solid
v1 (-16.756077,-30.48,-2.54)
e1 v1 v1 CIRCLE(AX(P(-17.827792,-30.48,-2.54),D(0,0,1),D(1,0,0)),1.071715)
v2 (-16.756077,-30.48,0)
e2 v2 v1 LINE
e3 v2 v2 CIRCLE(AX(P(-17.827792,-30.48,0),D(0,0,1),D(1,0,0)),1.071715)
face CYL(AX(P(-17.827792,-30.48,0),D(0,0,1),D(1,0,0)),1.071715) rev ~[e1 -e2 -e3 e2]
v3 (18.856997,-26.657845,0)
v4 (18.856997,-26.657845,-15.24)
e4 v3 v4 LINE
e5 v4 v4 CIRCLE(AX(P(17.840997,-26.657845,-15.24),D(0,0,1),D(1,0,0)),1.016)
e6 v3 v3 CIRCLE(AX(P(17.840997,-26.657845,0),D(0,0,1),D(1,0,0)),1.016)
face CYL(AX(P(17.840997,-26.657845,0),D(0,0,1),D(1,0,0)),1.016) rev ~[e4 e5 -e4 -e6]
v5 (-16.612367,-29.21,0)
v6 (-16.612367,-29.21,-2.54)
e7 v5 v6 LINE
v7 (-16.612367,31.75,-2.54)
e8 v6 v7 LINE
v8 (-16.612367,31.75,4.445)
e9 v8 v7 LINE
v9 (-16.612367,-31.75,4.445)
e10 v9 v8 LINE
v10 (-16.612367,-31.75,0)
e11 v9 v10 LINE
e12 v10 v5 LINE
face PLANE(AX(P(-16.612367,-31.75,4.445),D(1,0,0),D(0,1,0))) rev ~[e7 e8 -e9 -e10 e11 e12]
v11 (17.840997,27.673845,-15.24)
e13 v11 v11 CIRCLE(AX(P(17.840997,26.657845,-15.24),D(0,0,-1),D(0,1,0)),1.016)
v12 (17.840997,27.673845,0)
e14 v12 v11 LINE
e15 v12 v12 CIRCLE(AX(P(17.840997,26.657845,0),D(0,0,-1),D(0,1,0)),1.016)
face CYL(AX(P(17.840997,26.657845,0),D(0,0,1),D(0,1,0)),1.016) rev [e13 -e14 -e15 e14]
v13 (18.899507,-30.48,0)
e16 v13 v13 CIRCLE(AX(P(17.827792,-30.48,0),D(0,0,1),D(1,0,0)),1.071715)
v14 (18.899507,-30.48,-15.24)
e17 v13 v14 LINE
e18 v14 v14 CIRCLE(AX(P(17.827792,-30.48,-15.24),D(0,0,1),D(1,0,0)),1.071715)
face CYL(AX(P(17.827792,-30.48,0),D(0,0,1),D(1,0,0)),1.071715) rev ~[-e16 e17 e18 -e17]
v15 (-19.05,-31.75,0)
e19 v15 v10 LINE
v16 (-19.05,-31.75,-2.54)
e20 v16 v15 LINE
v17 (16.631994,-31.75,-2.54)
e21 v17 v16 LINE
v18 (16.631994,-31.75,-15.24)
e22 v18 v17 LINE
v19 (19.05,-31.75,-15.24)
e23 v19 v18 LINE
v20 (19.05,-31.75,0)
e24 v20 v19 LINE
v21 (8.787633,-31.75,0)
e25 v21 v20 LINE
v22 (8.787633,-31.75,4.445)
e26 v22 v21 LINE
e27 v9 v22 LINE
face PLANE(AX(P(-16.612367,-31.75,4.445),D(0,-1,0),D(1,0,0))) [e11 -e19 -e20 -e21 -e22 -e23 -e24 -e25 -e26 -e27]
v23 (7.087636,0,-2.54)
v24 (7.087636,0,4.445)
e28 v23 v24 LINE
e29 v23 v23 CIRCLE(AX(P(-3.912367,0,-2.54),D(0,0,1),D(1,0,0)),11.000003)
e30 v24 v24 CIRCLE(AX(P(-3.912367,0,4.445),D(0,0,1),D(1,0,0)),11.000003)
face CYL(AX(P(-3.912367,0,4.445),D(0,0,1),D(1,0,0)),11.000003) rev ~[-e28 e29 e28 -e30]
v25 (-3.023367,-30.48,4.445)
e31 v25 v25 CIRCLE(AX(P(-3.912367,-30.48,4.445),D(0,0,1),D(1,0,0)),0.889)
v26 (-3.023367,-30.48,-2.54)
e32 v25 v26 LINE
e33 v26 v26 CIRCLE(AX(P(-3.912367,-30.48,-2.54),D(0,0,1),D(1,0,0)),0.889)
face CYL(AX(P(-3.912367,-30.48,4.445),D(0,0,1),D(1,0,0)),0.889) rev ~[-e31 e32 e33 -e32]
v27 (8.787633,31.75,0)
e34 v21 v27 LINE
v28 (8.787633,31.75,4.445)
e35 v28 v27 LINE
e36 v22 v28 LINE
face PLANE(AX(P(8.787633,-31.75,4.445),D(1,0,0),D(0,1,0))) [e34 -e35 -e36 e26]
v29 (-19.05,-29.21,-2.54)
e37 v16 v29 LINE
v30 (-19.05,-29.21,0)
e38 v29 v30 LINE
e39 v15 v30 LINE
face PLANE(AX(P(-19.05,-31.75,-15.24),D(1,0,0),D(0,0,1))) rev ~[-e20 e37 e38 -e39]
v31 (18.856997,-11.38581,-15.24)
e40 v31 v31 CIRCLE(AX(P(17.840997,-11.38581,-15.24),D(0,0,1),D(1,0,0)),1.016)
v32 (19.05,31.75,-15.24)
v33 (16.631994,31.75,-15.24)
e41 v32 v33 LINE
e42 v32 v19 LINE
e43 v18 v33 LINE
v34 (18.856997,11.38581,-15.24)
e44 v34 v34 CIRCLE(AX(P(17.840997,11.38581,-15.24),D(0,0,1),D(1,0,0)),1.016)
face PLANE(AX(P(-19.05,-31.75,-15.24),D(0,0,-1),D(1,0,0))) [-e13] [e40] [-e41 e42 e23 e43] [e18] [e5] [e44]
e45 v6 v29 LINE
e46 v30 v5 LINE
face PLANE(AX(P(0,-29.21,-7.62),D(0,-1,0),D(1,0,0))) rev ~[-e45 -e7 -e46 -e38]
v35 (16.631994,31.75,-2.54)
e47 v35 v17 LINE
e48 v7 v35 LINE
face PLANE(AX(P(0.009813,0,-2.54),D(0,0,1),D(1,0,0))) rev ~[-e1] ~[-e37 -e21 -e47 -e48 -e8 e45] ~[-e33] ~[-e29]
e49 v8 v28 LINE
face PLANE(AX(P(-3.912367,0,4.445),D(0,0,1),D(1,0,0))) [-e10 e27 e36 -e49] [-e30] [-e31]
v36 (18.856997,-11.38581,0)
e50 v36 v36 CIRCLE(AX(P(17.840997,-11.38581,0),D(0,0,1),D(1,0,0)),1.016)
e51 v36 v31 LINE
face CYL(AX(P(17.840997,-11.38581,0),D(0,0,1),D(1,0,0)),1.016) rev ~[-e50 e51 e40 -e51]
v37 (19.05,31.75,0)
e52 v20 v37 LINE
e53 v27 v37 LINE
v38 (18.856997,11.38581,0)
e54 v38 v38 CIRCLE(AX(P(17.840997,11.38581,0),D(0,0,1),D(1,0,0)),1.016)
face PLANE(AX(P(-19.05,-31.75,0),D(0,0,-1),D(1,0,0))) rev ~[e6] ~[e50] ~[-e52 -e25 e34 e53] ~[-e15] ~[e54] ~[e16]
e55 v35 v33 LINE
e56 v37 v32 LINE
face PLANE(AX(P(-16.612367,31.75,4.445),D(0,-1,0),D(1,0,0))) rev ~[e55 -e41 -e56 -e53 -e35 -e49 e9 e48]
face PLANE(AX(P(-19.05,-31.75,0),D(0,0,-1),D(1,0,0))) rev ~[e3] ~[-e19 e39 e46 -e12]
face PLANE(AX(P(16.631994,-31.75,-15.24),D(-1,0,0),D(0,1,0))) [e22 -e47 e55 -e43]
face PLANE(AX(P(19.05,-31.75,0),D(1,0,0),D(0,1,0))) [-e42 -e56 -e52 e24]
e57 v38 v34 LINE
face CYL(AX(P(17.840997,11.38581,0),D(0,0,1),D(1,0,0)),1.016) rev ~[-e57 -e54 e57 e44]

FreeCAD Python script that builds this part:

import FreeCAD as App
import Part
import Sketcher
from FreeCAD import Vector
Q = App.Units.Quantity


def add_polygon(sketch, points):
    """Adds a closed chain of lines whose ends are joined by coincident constraints."""
    first, n = sketch.GeometryCount, len(points)
    for a, b in zip(points, points[1:] + points[:1]):
        sketch.addGeometry(Part.LineSegment(App.Vector(*a, 0), App.Vector(*b, 0)), False)
    for i in range(n):
        sketch.addConstraint(Sketcher.Constraint("Coincident", first + i, 2, first + (i + 1) % n, 1))

doc = App.newDocument("Part")
body = doc.addObject("PartDesign::Body", "Body")

# Sketch on XY plane
sketch1 = body.newObject("Sketcher::SketchObject", "Sketch")
sketch1.AttachmentSupport = (doc.getObject("XY_Plane"), [""])
sketch1.MapMode = "FlatFace"
add_polygon(sketch1, [(19.1, 31.8), (16.6, 31.8), (16.6, -31.8), (19.1, -31.8)])  # lines 0-3
sketch1.addGeometry(Part.Circle(Vector(17.8, -26.7, 0), Vector(0, 0, 1), 1), False)  # 4
sketch1.addGeometry(Part.Circle(Vector(17.8, -11.4, 0), Vector(0, 0, 1), 1), False)  # 5
sketch1.addGeometry(Part.Circle(Vector(17.8, 11.4, 0), Vector(0, 0, 1), 1), False)  # 6
sketch1.addGeometry(Part.Circle(Vector(17.8, 26.7, 0), Vector(0, 0, 1), 1), False)  # 7
sketch1.addConstraint(Sketcher.Constraint("Horizontal", 0))
sketch1.addConstraint(Sketcher.Constraint("Vertical", 1))
sketch1.addConstraint(Sketcher.Constraint("Horizontal", 2))
sketch1.addConstraint(Sketcher.Constraint("Vertical", 3))
sketch1.addConstraint(Sketcher.Constraint("Equal", 4, 5))
sketch1.addConstraint(Sketcher.Constraint("Equal", 5, 6))
sketch1.addConstraint(Sketcher.Constraint("Equal", 6, 7))
sketch1.addConstraint(Sketcher.Constraint("Symmetric", 5, 3, 6, 3, -1))
sketch1.addConstraint(Sketcher.Constraint("Symmetric", 4, 3, 7, 3, -1))
sketch1.addConstraint(Sketcher.Constraint("Vertical", 4, 3, 5, 3))
sketch1.addConstraint(Sketcher.Constraint("Diameter", 4, Q("0.08 in")))
sketch1.addConstraint(Sketcher.Constraint("DistanceY", 1, 2, 1, 1, Q("2.5 in")))
sketch1.addConstraint(Sketcher.Constraint("DistanceY", -1, 1, 0, 2, Q("1.25 in")))
sketch1.addConstraint(Sketcher.Constraint("DistanceX", -1, 1, 2, 2, Q("0.75 in")))
sketch1.addConstraint(Sketcher.Constraint("DistanceX", 0, 2, 0, 1, Q("2.418006 mm")))
sketch1.addConstraint(Sketcher.Constraint("DistanceY", 5, 3, -1, 1, Q("11.38581 mm")))
sketch1.addConstraint(Sketcher.Constraint("DistanceY", 4, 3, 7, 3, Q("53.31569 mm")))
sketch1.addConstraint(Sketcher.Constraint("DistanceX", -1, 1, 4, 3, Q("17.840997 mm")))
pad1 = body.newObject("PartDesign::Pad", "Pad")
pad1.Profile = sketch1
pad1.Length = Q("0.6 in")
pad1.Reversed = True

# Sketch on XY plane
sketch2 = body.newObject("Sketcher::SketchObject", "Sketch001")
sketch2.AttachmentSupport = (doc.getObject("XY_Plane"), [""])
sketch2.MapMode = "FlatFace"
add_polygon(sketch2, [(-17, 32), (-17, -32), (17, -32), (17, 32)])  # lines 0-3
sketch2.addConstraint(Sketcher.Constraint("Vertical", 0))
sketch2.addConstraint(Sketcher.Constraint("Horizontal", 1))
sketch2.addConstraint(Sketcher.Constraint("Vertical", 2))
sketch2.addConstraint(Sketcher.Constraint("Horizontal", 3))
sketch2.addConstraint(Sketcher.Constraint("DistanceY", 0, 2, 0, 1, Q("2.5 in")))
sketch2.addConstraint(Sketcher.Constraint("DistanceY", 0, 2, -1, 1, Q("1.25 in")))
sketch2.addConstraint(Sketcher.Constraint("DistanceX", 1, 1, 1, 2, Q("33.244361 mm")))
sketch2.addConstraint(Sketcher.Constraint("DistanceX", 0, 2, -1, 1, Q("16.612367 mm")))
pad2 = body.newObject("PartDesign::Pad", "Pad001")
pad2.Profile = sketch2
pad2.Length = Q("0.1 in")
pad2.Reversed = True

# Sketch on XZ plane
sketch3 = body.newObject("Sketcher::SketchObject", "Sketch002")
sketch3.AttachmentSupport = (doc.getObject("XZ_Plane"), [""])
sketch3.MapMode = "FlatFace"
sketch3.AttachmentOffset = App.Placement(Vector(0, 0, 1.25 * 25.4), App.Rotation())
add_polygon(sketch3, [(-19, 0), (-19, -15), (19, -15), (19, 0)])  # lines 0-3
sketch3.addConstraint(Sketcher.Constraint("Vertical", 0))
sketch3.addConstraint(Sketcher.Constraint("Horizontal", 1))
sketch3.addConstraint(Sketcher.Constraint("Vertical", 2))
sketch3.addConstraint(Sketcher.Constraint("Horizontal", 3))
sketch3.addConstraint(Sketcher.Constraint("Symmetric", 2, 2, 3, 2, -1, 1))
sketch3.addConstraint(Sketcher.Constraint("DistanceX", 1, 1, 1, 2, Q("1.5 in")))
sketch3.addConstraint(Sketcher.Constraint("DistanceY", 0, 2, 0, 1, Q("0.6 in")))
pad3 = body.newObject("PartDesign::Pad", "Pad002")
pad3.Profile = sketch3
pad3.Length = Q("0.1 in")
pad3.Reversed = True

# Sketch on XY plane
sketch4 = body.newObject("Sketcher::SketchObject", "Sketch003")
sketch4.AttachmentSupport = (doc.getObject("XY_Plane"), [""])
sketch4.MapMode = "FlatFace"
sketch4.addGeometry(Part.Circle(Vector(-17.8, -30.5, 0), Vector(0, 0, 1), 1.1), False)
sketch4.addGeometry(Part.Circle(Vector(17.8, -30.5, 0), Vector(0, 0, 1), 1.1), False)
sketch4.addConstraint(Sketcher.Constraint("Equal", 0, 1))
sketch4.addConstraint(Sketcher.Constraint("Symmetric", 0, 3, 1, 3, -2))
sketch4.addConstraint(Sketcher.Constraint("DistanceY", 0, 3, -1, 1, Q("1.2 in")))
sketch4.addConstraint(Sketcher.Constraint("Diameter", 0, Q("2.14343 mm")))
sketch4.addConstraint(Sketcher.Constraint("DistanceX", 0, 3, -1, 1, Q("17.827792 mm")))
pocket1 = body.newObject("PartDesign::Pocket", "Pocket")
pocket1.Profile = sketch4
pocket1.Type = "ThroughAll"

# Sketch on XY plane
sketch5 = body.newObject("Sketcher::SketchObject", "Sketch004")
sketch5.AttachmentSupport = (doc.getObject("XY_Plane"), [""])
sketch5.MapMode = "FlatFace"
sketch5.addGeometry(Part.Circle(Vector(-4, 0, 0), Vector(0, 0, 1), 11), False)
sketch5.addConstraint(Sketcher.Constraint("PointOnObject", 0, 3, -1))
sketch5.addConstraint(Sketcher.Constraint("Diameter", 0, Q("22.000007 mm")))
sketch5.addConstraint(Sketcher.Constraint("DistanceX", 0, 3, -1, 1, Q("3.912367 mm")))
pocket2 = body.newObject("PartDesign::Pocket", "Pocket001")
pocket2.Profile = sketch5
pocket2.Type = "ThroughAll"

# Sketch on XY plane
sketch6 = body.newObject("Sketcher::SketchObject", "Sketch005")
sketch6.AttachmentSupport = (doc.getObject("XY_Plane"), [""])
sketch6.MapMode = "FlatFace"
sketch6.AttachmentOffset = App.Placement(Vector(0, 0, 0.175 * 25.4), App.Rotation())
add_polygon(sketch6, [(-17, 32), (-17, -32), (9, -32), (9, 32)])  # lines 0-3
sketch6.addGeometry(Part.Circle(Vector(-4, 0, 0), Vector(0, 0, 1), 11), False)  # 4
sketch6.addConstraint(Sketcher.Constraint("Vertical", 0))
sketch6.addConstraint(Sketcher.Constraint("Horizontal", 1))
sketch6.addConstraint(Sketcher.Constraint("Vertical", 2))
sketch6.addConstraint(Sketcher.Constraint("Horizontal", 3))
sketch6.addConstraint(Sketcher.Constraint("PointOnObject", 4, 3, -1))
sketch6.addConstraint(Sketcher.Constraint("DistanceX", 1, 1, 1, 2, Q("1 in")))
sketch6.addConstraint(Sketcher.Constraint("DistanceY", 0, 2, 0, 1, Q("2.5 in")))
sketch6.addConstraint(Sketcher.Constraint("DistanceX", 0, 2, 4, 3, Q("0.5 in")))
sketch6.addConstraint(Sketcher.Constraint("DistanceY", 0, 2, -1, 1, Q("1.25 in")))
sketch6.addConstraint(Sketcher.Constraint("Diameter", 4, Q("22.000007 mm")))
sketch6.addConstraint(Sketcher.Constraint("DistanceX", 4, 3, -1, 1, Q("3.912367 mm")))
pad4 = body.newObject("PartDesign::Pad", "Pad003")
pad4.Profile = sketch6
pad4.Length = Q("0.175 in")
pad4.Reversed = True

# Sketch on XY plane
sketch7 = body.newObject("Sketcher::SketchObject", "Sketch006")
sketch7.AttachmentSupport = (doc.getObject("XY_Plane"), [""])
sketch7.MapMode = "FlatFace"
sketch7.AttachmentOffset = App.Placement(Vector(0, 0, -0.6 * 25.4), App.Rotation())
add_polygon(sketch7, [(16.6, -29.2), (16.6, -31.8), (-19.1, -31.8), (-19.1, -29.2)])  # lines 0-3
sketch7.addConstraint(Sketcher.Constraint("Vertical", 0))
sketch7.addConstraint(Sketcher.Constraint("Horizontal", 1))
sketch7.addConstraint(Sketcher.Constraint("Vertical", 2))
sketch7.addConstraint(Sketcher.Constraint("Horizontal", 3))
sketch7.addConstraint(Sketcher.Constraint("DistanceY", 0, 2, 0, 1, Q("0.1 in")))
sketch7.addConstraint(Sketcher.Constraint("DistanceY", 0, 2, -1, 1, Q("1.25 in")))
sketch7.addConstraint(Sketcher.Constraint("DistanceX", 1, 2, -1, 1, Q("0.75 in")))
sketch7.addConstraint(Sketcher.Constraint("DistanceX", 1, 2, 1, 1, Q("35.681994 mm")))
pocket3 = body.newObject("PartDesign::Pocket", "Pocket002")
pocket3.Profile = sketch7
pocket3.Length = Q("0.5 in")
pocket3.Reversed = True

# Sketch on XY plane
sketch8 = body.newObject("Sketcher::SketchObject", "Sketch007")
sketch8.AttachmentSupport = (doc.getObject("XY_Plane"), [""])
sketch8.MapMode = "FlatFace"
sketch8.AttachmentOffset = App.Placement(Vector(0, 0, 0.175 * 25.4), App.Rotation())
sketch8.addGeometry(Part.Circle(Vector(-3.9, -30.5, 0), Vector(0, 0, 1), 0.9), False)
sketch8.addConstraint(Sketcher.Constraint("Diameter", 0, Q("0.07 in")))
sketch8.addConstraint(Sketcher.Constraint("DistanceY", 0, 3, -1, 1, Q("1.2 in")))
sketch8.addConstraint(Sketcher.Constraint("DistanceX", 0, 3, -1, 1, Q("3.912367 mm")))
pocket4 = body.newObject("PartDesign::Pocket", "Pocket003")
pocket4.Profile = sketch8
pocket4.Length = Q("0.5 in")
body2 = doc.addObject("PartDesign::Body", "Body001")

# Sketch on XY plane
sketch9 = body2.newObject("Sketcher::SketchObject", "Sketch008")
sketch9.AttachmentSupport = (doc.getObject("XY_Plane001"), [""])
sketch9.MapMode = "FlatFace"
sketch9.addGeometry(Part.Circle(Vector(-17.8, -26.7, 0), Vector(0, 0, 1), 1), False)
sketch9.addConstraint(Sketcher.Constraint("Diameter", 0, Q("0.08 in")))
sketch9.addConstraint(Sketcher.Constraint("DistanceX", 0, 3, -1, 1, Q("17.840997 mm")))
sketch9.addConstraint(Sketcher.Constraint("DistanceY", 0, 3, -1, 1, Q("26.657845 mm")))
pad5 = body2.newObject("PartDesign::Pad", "Pad004")
pad5.Profile = sketch9
pad5.Length = Q("0.6 in")
pad5.Reversed = True

# Sketch on XY plane
sketch10 = body2.newObject("Sketcher::SketchObject", "Sketch009")
sketch10.AttachmentSupport = (doc.getObject("XY_Plane001"), [""])
sketch10.MapMode = "FlatFace"
sketch10.addGeometry(Part.Circle(Vector(-17.8, -26.7, 0), Vector(0, 0, 1), 1), False)
sketch10.addConstraint(Sketcher.Constraint("Diameter", 0, Q("0.08 in")))
sketch10.addConstraint(Sketcher.Constraint("DistanceX", 0, 3, -1, 1, Q("17.840997 mm")))
sketch10.addConstraint(Sketcher.Constraint("DistanceY", 0, 3, -1, 1, Q("26.657845 mm")))
pocket5 = body2.newObject("PartDesign::Pocket", "Pocket004")
pocket5.Profile = sketch10
pocket5.Type = "ThroughAll"

doc.recompute()
